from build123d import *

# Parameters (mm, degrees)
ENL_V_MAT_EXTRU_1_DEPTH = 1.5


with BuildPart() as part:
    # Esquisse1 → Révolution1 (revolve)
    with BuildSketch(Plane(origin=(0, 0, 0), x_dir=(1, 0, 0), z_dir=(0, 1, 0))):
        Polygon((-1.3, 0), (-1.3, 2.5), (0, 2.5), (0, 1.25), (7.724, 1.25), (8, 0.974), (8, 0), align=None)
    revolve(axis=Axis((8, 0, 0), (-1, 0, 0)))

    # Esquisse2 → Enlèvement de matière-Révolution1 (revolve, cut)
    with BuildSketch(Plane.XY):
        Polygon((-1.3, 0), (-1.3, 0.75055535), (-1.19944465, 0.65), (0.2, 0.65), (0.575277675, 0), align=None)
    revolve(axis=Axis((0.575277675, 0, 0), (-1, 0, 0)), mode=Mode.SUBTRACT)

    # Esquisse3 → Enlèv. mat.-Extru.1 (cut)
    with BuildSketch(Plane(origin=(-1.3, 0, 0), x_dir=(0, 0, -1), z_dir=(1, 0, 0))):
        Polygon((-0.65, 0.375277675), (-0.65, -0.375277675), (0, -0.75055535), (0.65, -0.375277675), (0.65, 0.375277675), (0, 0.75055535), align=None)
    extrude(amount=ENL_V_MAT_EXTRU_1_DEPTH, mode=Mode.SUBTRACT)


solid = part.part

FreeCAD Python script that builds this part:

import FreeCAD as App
import Part
import Sketcher
Q = App.Units.Quantity


def add_polygon(sketch, points):
    """Adds a closed chain of lines whose ends are joined by coincident constraints."""
    first, n = sketch.GeometryCount, len(points)
    for a, b in zip(points, points[1:] + points[:1]):
        sketch.addGeometry(Part.LineSegment(App.Vector(*a, 0), App.Vector(*b, 0)), False)
    for i in range(n):
        sketch.addConstraint(Sketcher.Constraint("Coincident", first + i, 2, first + (i + 1) % n, 1))

doc = App.newDocument("Part")
body = doc.addObject("PartDesign::Body", "Body")

# Sketch on XZ plane
sketch1 = body.newObject("Sketcher::SketchObject", "Sketch")
sketch1.AttachmentSupport = (doc.getObject("XZ_Plane"), [""])
sketch1.MapMode = "FlatFace"
add_polygon(sketch1, [(-1.3, -2.5), (-1.3, 0), (8, 0), (8, -0.97), (7.72, -1.25), (0, -1.25), (0, -2.5)])  # lines 0-6
sketch1.addConstraint([
    Sketcher.Constraint("Vertical", 0),
    Sketcher.Constraint("Horizontal", 1),
    Sketcher.Constraint("Vertical", 2),
    Sketcher.Constraint("Horizontal", 4),
    Sketcher.Constraint("Vertical", 5),
    Sketcher.Constraint("Horizontal", 6),
    Sketcher.Constraint("PointOnObject", 0, 2, -1),
    Sketcher.Constraint("PointOnObject", 4, 2, -2),
    Sketcher.Constraint("Angle", 3, Q("-135 deg")),
    Sketcher.Constraint("DistanceX", 1, 1, 1, 2, 9.3),
    Sketcher.Constraint("DistanceX", 6, 2, 6, 1, 1.3),
    Sketcher.Constraint("DistanceY", 0, 1, 0, 2, 2.5),
    Sketcher.Constraint("DistanceY", 5, 2, 5, 1, 1.25),
    Sketcher.Constraint("DistanceX", 4, 2, 4, 1, 7.724),
])
revolution = body.newObject("PartDesign::Revolution", "Revolution")
revolution.Profile = sketch1
revolution.ReferenceAxis = (sketch1, ["H_Axis"])
revolution.Angle = 360

# Sketch on XY plane
sketch2 = body.newObject("Sketcher::SketchObject", "Sketch001")
sketch2.AttachmentSupport = (doc.getObject("XY_Plane"), [""])
sketch2.MapMode = "FlatFace"
add_polygon(sketch2, [(-1.3, 0.75), (-1.3, 0), (0.58, 0), (0.2, 0.65), (-1.2, 0.65)])  # lines 0-4
sketch2.addConstraint([
    Sketcher.Constraint("Vertical", 0),
    Sketcher.Constraint("Horizontal", 1),
    Sketcher.Constraint("Horizontal", 3),
    Sketcher.Constraint("PointOnObject", 0, 2, -1),
    Sketcher.Constraint("Angle", 2, Q("120 deg")),
    Sketcher.Constraint("Angle", 4, Q("135 deg")),
    Sketcher.Constraint("DistanceX", 0, 2, -1, 1, 1.3),
    Sketcher.Constraint("DistanceX", -1, 1, 2, 2, 0.2),
    Sketcher.Constraint("DistanceY", -1, 1, 2, 2, 0.65),
    Sketcher.Constraint("DistanceX", 3, 2, 3, 1, 1.399445),
])
groove = body.newObject("PartDesign::Groove", "Groove")
groove.Profile = sketch2
groove.ReferenceAxis = (sketch2, ["H_Axis"])
groove.Angle = 360

# Sketch on YZ plane
sketch3 = body.newObject("Sketcher::SketchObject", "Sketch002")
sketch3.AttachmentSupport = (doc.getObject("YZ_Plane"), [""])
sketch3.MapMode = "FlatFace"
sketch3.AttachmentOffset = App.Placement(App.Vector(0, 0, -1.3), App.Rotation())
add_polygon(sketch3, [(0.4, 0.7), (-0.4, 0.7), (-0.8, 0), (-0.4, -0.7), (0.4, -0.7), (0.8, 0)])  # lines 0-5
sketch3.addConstraint([
    Sketcher.Constraint("Horizontal", 0),
    Sketcher.Constraint("Horizontal", 3),
    Sketcher.Constraint("Symmetric", 0, 2, 3, 2, -1, 1),
    Sketcher.Constraint("Symmetric", 1, 2, 4, 2, -1, 1),
    Sketcher.Constraint("PointOnObject", 1, 2, -1),
    Sketcher.Constraint("Parallel", 2, 5),
    Sketcher.Constraint("Vertical", 0, 2, 2, 2),
    Sketcher.Constraint("Angle", 1, Q("-120 deg")),
    Sketcher.Constraint("DistanceY", 2, 2, 0, 2, 1.3),
    Sketcher.Constraint("DistanceX", 0, 2, 0, 1, 0.750555),
])
pocket1 = body.newObject("PartDesign::Pocket", "Pocket")
pocket1.Profile = sketch3
pocket1.Length = 1.5
pocket1.Reversed = True

doc.recompute()
